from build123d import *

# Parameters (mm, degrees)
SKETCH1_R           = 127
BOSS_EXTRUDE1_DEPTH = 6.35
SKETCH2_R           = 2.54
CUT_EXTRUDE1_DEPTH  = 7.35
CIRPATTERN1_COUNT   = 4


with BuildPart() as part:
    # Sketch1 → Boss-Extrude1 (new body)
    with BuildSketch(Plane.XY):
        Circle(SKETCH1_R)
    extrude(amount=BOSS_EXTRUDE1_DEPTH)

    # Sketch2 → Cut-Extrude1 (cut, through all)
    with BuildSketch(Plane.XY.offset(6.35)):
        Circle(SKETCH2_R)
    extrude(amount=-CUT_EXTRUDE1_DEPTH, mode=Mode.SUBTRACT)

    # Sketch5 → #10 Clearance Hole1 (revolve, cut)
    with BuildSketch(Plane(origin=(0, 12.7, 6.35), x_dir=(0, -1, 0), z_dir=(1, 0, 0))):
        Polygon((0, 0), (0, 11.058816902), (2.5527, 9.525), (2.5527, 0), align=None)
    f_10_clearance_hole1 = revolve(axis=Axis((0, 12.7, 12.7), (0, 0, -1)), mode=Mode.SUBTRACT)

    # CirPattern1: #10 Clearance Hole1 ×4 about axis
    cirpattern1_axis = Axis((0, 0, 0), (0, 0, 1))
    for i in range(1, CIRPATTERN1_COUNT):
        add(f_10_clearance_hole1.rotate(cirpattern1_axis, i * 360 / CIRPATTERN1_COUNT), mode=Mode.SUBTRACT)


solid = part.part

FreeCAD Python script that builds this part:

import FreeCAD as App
import Part
import Sketcher

V = App.Vector
Q = App.Units.Quantity

doc = App.newDocument("Part")
body = doc.addObject("PartDesign::Body", "Body")

sketch1 = body.newObject("Sketcher::SketchObject", "Sketch")
sketch1.AttachmentSupport = (doc.getObject("XY_Plane"), [""])
sketch1.MapMode = "FlatFace"
sketch1.addGeometry(Part.Circle(V(0, 0, 0), V(0, 0, 1), 127), False)
sketch1.addConstraint([
    Sketcher.Constraint("Coincident", 0, 3, -1, 1),
    Sketcher.Constraint("Diameter", 0, Q("10 in")),
])
pad1 = body.newObject("PartDesign::Pad", "Pad")
pad1.Profile = sketch1
pad1.Length = Q("0.25 in")

sketch2 = body.newObject("Sketcher::SketchObject", "Sketch001")
sketch2.AttachmentSupport = (doc.getObject("XY_Plane"), [""])
sketch2.MapMode = "FlatFace"
sketch2.AttachmentOffset = App.Placement(V(0, 0, 0.25 * 25.4), App.Rotation())
sketch2.addGeometry(Part.Circle(V(0, 0, 0), V(0, 0, 1), 2.5), False)
sketch2.addConstraint([
    Sketcher.Constraint("Coincident", 0, 3, -1, 1),
    Sketcher.Constraint("Diameter", 0, Q("0.2 in")),
])
pocket1 = body.newObject("PartDesign::Pocket", "Pocket")
pocket1.Profile = sketch2
pocket1.Type = "ThroughAll"

sketch3 = body.newObject("Sketcher::SketchObject", "Sketch002")
sketch3.AttachmentSupport = (doc.getObject("YZ_Plane"), [""])
sketch3.MapMode = "FlatFace"
sketch3.addGeometry([
    Part.LineSegment(V(12.7, -4.7, 0), V(12.7, 6.3, 0)),
    Part.LineSegment(V(12.7, 6.3, 0), V(10.1, 6.3, 0)),
    Part.LineSegment(V(10.1, 6.3, 0), V(10.1, -3.2, 0)),
    Part.LineSegment(V(10.1, -3.2, 0), V(12.7, -4.7, 0)),
], False)
sketch3.addGeometry(Part.LineSegment(V(12.7, 6.3, 0), V(12.7, -4.7, 0)), True)
sketch3.addConstraint([
    Sketcher.Constraint("Coincident", 0, 2, 1, 1),
    Sketcher.Constraint("Coincident", 1, 2, 2, 1),
    Sketcher.Constraint("Coincident", 2, 2, 3, 1),
    Sketcher.Constraint("Coincident", 3, 2, 0, 1),
    Sketcher.Constraint("Vertical", 0),
    Sketcher.Constraint("Horizontal", 1),
    Sketcher.Constraint("Vertical", 2),
    Sketcher.Constraint("Vertical", 4),
    Sketcher.Constraint("Coincident", 4, 1, 0, 2),
    Sketcher.Constraint("Equal", 0, 4),
    Sketcher.Constraint("Angle", 3, Q("-31 deg")),
    Sketcher.Constraint("DistanceX", -1, 1, 0, 2, Q("0.5 in")),
    Sketcher.Constraint("DistanceY", 2, 2, 2, 1, Q("0.375 in")),
    Sketcher.Constraint("DistanceY", -1, 1, 0, 2, Q("0.25 in")),
    Sketcher.Constraint("DistanceX", 1, 2, 1, 1, Q("0.1005 in")),
])
groove = body.newObject("PartDesign::Groove", "Groove")
groove.Profile = sketch3
groove.ReferenceAxis = (sketch3, ["Axis0"])
groove.Angle = 360
doc.recompute()

polarpattern = body.newObject("PartDesign::PolarPattern", "PolarPattern")
polarpattern.Originals = [groove]
polarpattern.Axis = (doc.getObject("Z_Axis"), [""])
polarpattern.Angle = 360
polarpattern.Occurrences = 4
body.Tip = polarpattern

doc.recompute()
